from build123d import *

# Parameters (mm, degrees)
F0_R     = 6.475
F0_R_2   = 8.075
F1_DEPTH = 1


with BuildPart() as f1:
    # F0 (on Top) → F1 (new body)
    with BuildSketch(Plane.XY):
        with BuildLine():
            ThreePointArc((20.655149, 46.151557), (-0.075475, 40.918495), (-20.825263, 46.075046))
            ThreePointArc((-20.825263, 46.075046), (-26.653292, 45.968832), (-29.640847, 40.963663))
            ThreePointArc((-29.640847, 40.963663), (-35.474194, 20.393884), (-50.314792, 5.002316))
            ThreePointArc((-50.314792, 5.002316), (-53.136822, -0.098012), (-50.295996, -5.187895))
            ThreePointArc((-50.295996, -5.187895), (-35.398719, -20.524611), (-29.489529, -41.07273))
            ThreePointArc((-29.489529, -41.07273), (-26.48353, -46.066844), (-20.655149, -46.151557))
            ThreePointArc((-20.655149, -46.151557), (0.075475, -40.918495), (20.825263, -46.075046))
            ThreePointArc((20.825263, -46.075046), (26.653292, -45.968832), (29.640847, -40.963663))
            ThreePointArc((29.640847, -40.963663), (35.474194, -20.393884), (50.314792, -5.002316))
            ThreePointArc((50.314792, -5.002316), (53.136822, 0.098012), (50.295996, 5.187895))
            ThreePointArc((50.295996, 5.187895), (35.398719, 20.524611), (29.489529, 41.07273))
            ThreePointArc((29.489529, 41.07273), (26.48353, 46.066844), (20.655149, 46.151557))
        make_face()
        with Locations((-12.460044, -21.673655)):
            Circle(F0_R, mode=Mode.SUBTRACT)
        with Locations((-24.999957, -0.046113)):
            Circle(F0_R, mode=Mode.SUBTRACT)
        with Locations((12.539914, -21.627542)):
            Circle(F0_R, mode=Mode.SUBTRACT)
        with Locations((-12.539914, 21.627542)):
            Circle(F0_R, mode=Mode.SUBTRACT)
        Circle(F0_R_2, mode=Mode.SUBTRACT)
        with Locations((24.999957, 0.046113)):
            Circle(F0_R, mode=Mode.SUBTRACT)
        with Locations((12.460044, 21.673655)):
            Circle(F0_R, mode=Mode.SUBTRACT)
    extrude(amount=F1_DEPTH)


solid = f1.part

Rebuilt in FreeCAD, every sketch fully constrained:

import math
import FreeCAD as App
import Part
import Sketcher
from FreeCAD import Vector

doc = App.newDocument("Part")
params = doc.addObject("Spreadsheet::Sheet", "Params")
for row, (alias, value) in enumerate([
    ("sketch1_radius", "6.000001 mm"),
    ("sketch1_diameter", "12.95 mm"),
    ("sketch1_diameter2", "16.15 mm"),
    ("pad1_length", "1 mm"),
], start=1):
    params.set(f"A{row}", alias)
    params.set(f"B{row}", "=" + value)
    params.setAlias(f"B{row}", alias)

body = doc.addObject("PartDesign::Body", "Body")

sketch1 = body.newObject("Sketcher::SketchObject", "Sketch")
sketch1.AttachmentSupport = (doc.getObject("XY_Plane"), [""])
sketch1.MapMode = "FlatFace"
sketch1.addGeometry([
    Part.ArcOfCircle(Part.Circle(Vector(-0.156633, 84.918417, 0), Vector(0, 0, 1), 43.999997), math.radians(-118.017526), math.radians(-61.771109)),
    Part.ArcOfCircle(Part.Circle(Vector(-23.643712, 40.778221, 0), Vector(0, 0, 1), 6.000001), math.radians(61.982483), math.radians(178.228877)),
    Part.ArcOfCircle(Part.Circle(Vector(-73.619822, 42.323559, 0), Vector(0, 0, 1), 43.999995), math.radians(-58.017526), math.radians(-1.771107)),
    Part.ArcOfCircle(Part.Circle(Vector(-47.136831, -0.086945, 0), Vector(0, 0, 1), 6.000001), math.radians(121.982489), math.radians(238.228877)),
    Part.ArcOfCircle(Part.Circle(Vector(-73.463189, -42.594857, 0), Vector(0, 0, 1), 43.999996), math.radians(1.982475), math.radians(58.228892)),
    Part.ArcOfCircle(Part.Circle(Vector(-23.49312, -40.865166, 0), Vector(0, 0, 1), 6.000001), math.radians(-178.017515), math.radians(-61.77111)),
    Part.ArcOfCircle(Part.Circle(Vector(0.156633, -84.918417, 0), Vector(0, 0, 1), 43.999997), math.radians(61.982474), math.radians(118.228891)),
    Part.ArcOfCircle(Part.Circle(Vector(23.643712, -40.778221, 0), Vector(0, 0, 1), 6.000001), math.radians(-118.017517), math.radians(-1.771123)),
    Part.ArcOfCircle(Part.Circle(Vector(73.619822, -42.323559, 0), Vector(0, 0, 1), 43.999995), math.radians(121.982474), math.radians(178.228893)),
    Part.ArcOfCircle(Part.Circle(Vector(47.136831, 0.086945, 0), Vector(0, 0, 1), 6.000001), math.radians(-58.017511), math.radians(58.228877)),
    Part.ArcOfCircle(Part.Circle(Vector(73.463189, 42.594857, 0), Vector(0, 0, 1), 43.999996), math.radians(-178.017525), math.radians(-121.771108)),
    Part.ArcOfCircle(Part.Circle(Vector(23.49312, 40.865166, 0), Vector(0, 0, 1), 6.000001), math.radians(1.982485), math.radians(118.22889)),
    Part.Circle(Vector(-12.460044, -21.673655, 0), Vector(0, 0, 1), 6.475),
    Part.Circle(Vector(-24.999957, -0.046113, 0), Vector(0, 0, 1), 6.475),
    Part.Circle(Vector(12.539914, -21.627542, 0), Vector(0, 0, 1), 6.475),
    Part.Circle(Vector(0, 0, 0), Vector(0, 0, 1), 8.075),
    Part.Circle(Vector(-12.539914, 21.627542, 0), Vector(0, 0, 1), 6.475),
    Part.Circle(Vector(24.999957, 0.046113, 0), Vector(0, 0, 1), 6.475),
    Part.Circle(Vector(12.460044, 21.673655, 0), Vector(0, 0, 1), 6.475),
], False)
sketch1.addConstraint([
    Sketcher.Constraint("Tangent", 0, 1, 1, 1),
    Sketcher.Constraint("Tangent", 1, 2, 2, 2),
    Sketcher.Constraint("Tangent", 2, 1, 3, 1),
    Sketcher.Constraint("Tangent", 3, 2, 4, 2),
    Sketcher.Constraint("Tangent", 4, 1, 5, 1),
    Sketcher.Constraint("Tangent", 5, 2, 6, 2),
    Sketcher.Constraint("Tangent", 6, 1, 7, 1),
    Sketcher.Constraint("Tangent", 7, 2, 8, 2),
    Sketcher.Constraint("Tangent", 8, 1, 9, 1),
    Sketcher.Constraint("Tangent", 9, 2, 10, 2),
    Sketcher.Constraint("Tangent", 10, 1, 11, 1),
    Sketcher.Constraint("Tangent", 11, 2, 0, 2),
    Sketcher.Constraint("Coincident", 15, 3, -1, 1),
    Sketcher.Constraint("Equal", 0, 2),
    Sketcher.Constraint("Equal", 1, 3),
    Sketcher.Constraint("Equal", 2, 4),
    Sketcher.Constraint("Equal", 3, 5),
    Sketcher.Constraint("Equal", 4, 6),
    Sketcher.Constraint("Equal", 5, 7),
    Sketcher.Constraint("Equal", 6, 8),
    Sketcher.Constraint("Equal", 7, 9),
    Sketcher.Constraint("Equal", 8, 10),
    Sketcher.Constraint("Equal", 9, 11),
    Sketcher.Constraint("Equal", 12, 13),
    Sketcher.Constraint("Equal", 13, 14),
    Sketcher.Constraint("Equal", 14, 16),
    Sketcher.Constraint("Equal", 16, 17),
    Sketcher.Constraint("Equal", 17, 18),
    Sketcher.Constraint("Symmetric", 0, 3, 6, 3, -1, 1),
    Sketcher.Constraint("Symmetric", 2, 3, 8, 3, -1, 1),
    Sketcher.Constraint("Symmetric", 4, 3, 10, 3, -1, 1),
    Sketcher.Constraint("Symmetric", 14, 3, 16, 3, -1, 1),
    Sketcher.Constraint("Symmetric", 13, 3, 17, 3, -1, 1),
    Sketcher.Constraint("Symmetric", 12, 3, 18, 3, -1, 1),
    Sketcher.Constraint("Radius", 1, 6.000001),
    Sketcher.Constraint("Diameter", 12, 12.95),
    Sketcher.Constraint("Diameter", 15, 16.15),
    Sketcher.Constraint("Radius", 0, 43.999997),
    Sketcher.Constraint("DistanceX", 4, 3, 7, 3, 97.106902),
    Sketcher.Constraint("DistanceY", 12, 3, 9, 3, 21.7606),
    Sketcher.Constraint("DistanceX", 14, 3, 7, 3, 11.103798),
    Sketcher.Constraint("DistanceY", 5, 2, 12, 3, 24.477902),
    Sketcher.Constraint("DistanceY", -1, 1, 1, 3, 40.778221),
    Sketcher.Constraint("DistanceY", -1, 1, 2, 3, 42.323559),
    Sketcher.Constraint("DistanceX", 3, 3, -1, 1, 47.136831),
    Sketcher.Constraint("DistanceX", 4, 3, -1, 1, 73.463189),
    Sketcher.Constraint("DistanceY", 14, 3, -1, 1, 21.627542),
    Sketcher.Constraint("DistanceX", 1, 3, 12, 3, 11.183668),
    Sketcher.Constraint("DistanceX", 13, 3, 7, 3, 48.643669),
    Sketcher.Constraint("DistanceY", 14, 3, 13, 3, 21.581429),
])
sketch1.setExpression("Constraints[34]", "Params.sketch1_radius")
sketch1.setExpression("Constraints[35]", "Params.sketch1_diameter")
sketch1.setExpression("Constraints[36]", "Params.sketch1_diameter2")
pad1 = body.newObject("PartDesign::Pad", "Pad")
pad1.Profile = sketch1
pad1.setExpression("Length", "Params.pad1_length")

doc.recompute()
